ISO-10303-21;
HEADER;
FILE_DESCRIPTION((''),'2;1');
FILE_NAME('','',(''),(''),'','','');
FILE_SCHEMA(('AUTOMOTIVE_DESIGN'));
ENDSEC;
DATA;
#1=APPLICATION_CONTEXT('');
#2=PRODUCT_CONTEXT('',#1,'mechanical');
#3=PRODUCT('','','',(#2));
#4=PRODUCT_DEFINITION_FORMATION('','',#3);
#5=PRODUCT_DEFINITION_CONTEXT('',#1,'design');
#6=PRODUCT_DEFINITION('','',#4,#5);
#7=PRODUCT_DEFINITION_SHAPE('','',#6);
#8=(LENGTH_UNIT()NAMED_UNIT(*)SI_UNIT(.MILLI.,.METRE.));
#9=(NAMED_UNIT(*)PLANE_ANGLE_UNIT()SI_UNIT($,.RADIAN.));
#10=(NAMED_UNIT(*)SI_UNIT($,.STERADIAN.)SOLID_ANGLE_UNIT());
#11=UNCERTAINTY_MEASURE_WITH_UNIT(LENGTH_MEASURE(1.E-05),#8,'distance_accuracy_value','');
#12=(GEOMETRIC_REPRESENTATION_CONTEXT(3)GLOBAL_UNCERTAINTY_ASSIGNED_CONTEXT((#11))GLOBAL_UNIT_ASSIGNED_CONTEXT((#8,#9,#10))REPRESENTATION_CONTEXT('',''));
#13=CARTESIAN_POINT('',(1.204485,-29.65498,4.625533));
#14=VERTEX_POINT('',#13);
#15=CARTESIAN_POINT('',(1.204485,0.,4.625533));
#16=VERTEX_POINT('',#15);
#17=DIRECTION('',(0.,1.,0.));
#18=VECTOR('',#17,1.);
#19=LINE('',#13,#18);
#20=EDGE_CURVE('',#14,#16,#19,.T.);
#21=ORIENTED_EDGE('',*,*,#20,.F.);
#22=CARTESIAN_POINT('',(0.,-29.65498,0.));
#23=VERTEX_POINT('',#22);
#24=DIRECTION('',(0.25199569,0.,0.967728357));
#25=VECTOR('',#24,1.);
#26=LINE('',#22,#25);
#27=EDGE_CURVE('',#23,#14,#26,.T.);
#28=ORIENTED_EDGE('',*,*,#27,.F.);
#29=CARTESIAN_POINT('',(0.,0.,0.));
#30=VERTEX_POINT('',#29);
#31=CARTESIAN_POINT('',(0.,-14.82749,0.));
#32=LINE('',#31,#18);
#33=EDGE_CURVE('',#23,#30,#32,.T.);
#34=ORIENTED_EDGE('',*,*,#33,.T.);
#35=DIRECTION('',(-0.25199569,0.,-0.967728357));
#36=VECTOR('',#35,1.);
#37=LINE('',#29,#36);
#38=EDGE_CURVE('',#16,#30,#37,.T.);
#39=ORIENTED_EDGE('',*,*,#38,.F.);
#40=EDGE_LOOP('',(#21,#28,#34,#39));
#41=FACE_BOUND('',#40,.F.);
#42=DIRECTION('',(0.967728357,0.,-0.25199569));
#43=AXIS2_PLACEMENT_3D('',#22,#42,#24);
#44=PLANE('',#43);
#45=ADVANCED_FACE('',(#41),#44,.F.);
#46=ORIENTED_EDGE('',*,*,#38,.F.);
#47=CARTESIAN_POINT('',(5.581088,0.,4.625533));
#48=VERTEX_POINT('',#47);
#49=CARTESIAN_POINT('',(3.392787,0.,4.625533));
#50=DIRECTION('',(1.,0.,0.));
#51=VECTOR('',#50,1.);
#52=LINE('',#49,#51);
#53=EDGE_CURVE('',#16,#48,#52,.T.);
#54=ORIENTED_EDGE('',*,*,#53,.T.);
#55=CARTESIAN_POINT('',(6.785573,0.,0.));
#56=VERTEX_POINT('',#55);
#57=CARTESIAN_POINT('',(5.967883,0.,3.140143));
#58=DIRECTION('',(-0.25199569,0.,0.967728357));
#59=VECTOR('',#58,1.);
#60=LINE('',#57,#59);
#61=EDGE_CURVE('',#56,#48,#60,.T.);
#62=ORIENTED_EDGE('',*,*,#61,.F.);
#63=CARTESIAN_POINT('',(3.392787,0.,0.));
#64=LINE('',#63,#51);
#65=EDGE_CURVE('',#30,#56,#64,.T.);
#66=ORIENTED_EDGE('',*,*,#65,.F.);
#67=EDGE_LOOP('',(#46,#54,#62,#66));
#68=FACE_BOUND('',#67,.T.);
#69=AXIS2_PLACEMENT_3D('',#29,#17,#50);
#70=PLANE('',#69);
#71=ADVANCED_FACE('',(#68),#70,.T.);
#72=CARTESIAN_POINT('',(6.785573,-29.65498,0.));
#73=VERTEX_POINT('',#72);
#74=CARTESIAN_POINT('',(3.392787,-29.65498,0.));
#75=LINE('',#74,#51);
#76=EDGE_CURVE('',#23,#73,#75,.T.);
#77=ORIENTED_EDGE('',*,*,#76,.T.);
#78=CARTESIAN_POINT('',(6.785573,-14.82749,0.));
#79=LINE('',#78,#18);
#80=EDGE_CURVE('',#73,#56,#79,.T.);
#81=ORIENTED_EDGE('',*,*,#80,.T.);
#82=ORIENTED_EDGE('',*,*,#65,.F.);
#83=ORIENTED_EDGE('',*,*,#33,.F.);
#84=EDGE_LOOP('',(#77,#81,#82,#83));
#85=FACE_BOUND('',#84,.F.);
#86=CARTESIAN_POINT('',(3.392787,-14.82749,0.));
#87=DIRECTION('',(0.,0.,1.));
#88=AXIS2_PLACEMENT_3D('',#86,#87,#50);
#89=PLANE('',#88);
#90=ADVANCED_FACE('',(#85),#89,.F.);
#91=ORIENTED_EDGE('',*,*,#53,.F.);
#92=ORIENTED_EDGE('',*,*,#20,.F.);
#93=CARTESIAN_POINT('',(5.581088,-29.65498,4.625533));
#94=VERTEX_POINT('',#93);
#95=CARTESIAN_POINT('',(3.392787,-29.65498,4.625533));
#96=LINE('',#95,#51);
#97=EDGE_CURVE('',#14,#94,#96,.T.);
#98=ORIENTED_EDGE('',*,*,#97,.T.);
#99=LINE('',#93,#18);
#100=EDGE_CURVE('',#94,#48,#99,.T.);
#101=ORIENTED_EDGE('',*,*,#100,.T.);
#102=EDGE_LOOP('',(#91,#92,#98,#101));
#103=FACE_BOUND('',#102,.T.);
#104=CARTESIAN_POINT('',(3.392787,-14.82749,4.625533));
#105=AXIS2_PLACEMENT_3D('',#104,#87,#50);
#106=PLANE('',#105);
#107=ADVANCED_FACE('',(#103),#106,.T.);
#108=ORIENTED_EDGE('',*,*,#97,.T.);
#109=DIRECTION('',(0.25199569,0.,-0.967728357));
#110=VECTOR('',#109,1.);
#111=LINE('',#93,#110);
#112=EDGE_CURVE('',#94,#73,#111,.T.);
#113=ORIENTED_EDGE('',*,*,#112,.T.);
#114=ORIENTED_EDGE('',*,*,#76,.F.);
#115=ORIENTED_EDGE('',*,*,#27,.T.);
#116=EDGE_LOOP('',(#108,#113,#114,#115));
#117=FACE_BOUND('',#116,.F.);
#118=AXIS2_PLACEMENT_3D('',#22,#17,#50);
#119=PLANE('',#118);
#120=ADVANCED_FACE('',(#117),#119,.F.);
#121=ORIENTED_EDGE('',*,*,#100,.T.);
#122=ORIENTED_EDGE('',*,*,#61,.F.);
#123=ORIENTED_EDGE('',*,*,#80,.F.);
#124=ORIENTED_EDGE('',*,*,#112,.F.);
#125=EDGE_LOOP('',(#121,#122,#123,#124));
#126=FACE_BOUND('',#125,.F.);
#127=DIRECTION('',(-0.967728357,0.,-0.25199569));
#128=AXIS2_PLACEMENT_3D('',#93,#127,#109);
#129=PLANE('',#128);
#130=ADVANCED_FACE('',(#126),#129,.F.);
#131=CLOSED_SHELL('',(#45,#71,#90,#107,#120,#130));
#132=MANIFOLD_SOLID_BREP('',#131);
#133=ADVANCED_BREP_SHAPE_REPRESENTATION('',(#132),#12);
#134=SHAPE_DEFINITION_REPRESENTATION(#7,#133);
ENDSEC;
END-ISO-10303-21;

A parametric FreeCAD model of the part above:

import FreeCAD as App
import Part
import Sketcher

V = App.Vector
Q = App.Units.Quantity


def add_polygon(sketch, points):
    """Adds a closed chain of lines whose ends are joined by coincident constraints."""
    first, n = sketch.GeometryCount, len(points)
    for a, b in zip(points, points[1:] + points[:1]):
        sketch.addGeometry(Part.LineSegment(App.Vector(*a, 0), App.Vector(*b, 0)), False)
    for i in range(n):
        sketch.addConstraint(Sketcher.Constraint("Coincident", first + i, 2, first + (i + 1) % n, 1))

doc = App.newDocument("Part")
body = doc.addObject("PartDesign::Body", "Body")

# Sketch on XY plane
sketch1 = body.newObject("Sketcher::SketchObject", "Sketch")
sketch1.AttachmentSupport = (doc.getObject("XY_Plane"), [""])
sketch1.MapMode = "FlatFace"
add_polygon(sketch1, [(0, 0), (0, -30), (7, -30), (7, 0)])  # lines 0-3
sketch1.addConstraint(Sketcher.Constraint("Vertical", 0))
sketch1.addConstraint(Sketcher.Constraint("Horizontal", 1))
sketch1.addConstraint(Sketcher.Constraint("Vertical", 2))
sketch1.addConstraint(Sketcher.Constraint("Horizontal", 3))
sketch1.addConstraint(Sketcher.Constraint("Coincident", 3, 2, -1, 1))
sketch1.addConstraint(Sketcher.Constraint("DistanceY", 0, 2, 0, 1, Q("29.65498 mm")))
sketch1.addConstraint(Sketcher.Constraint("DistanceX", 1, 1, 1, 2, Q("6.785573 mm")))
pad1 = body.newObject("PartDesign::Pad", "Pad")
pad1.Profile = sketch1
pad1.Length = 4.625533

# Sketch on XZ plane
sketch2 = body.newObject("Sketcher::SketchObject", "Sketch001")
sketch2.AttachmentSupport = (doc.getObject("XZ_Plane"), [""])
sketch2.MapMode = "FlatFace"
sketch2.AttachmentOffset = App.Placement(V(0, 0, 29.65498), App.Rotation())
add_polygon(sketch2, [(5.6, 4.6), (6.8, 0), (6.8, 4.6)])  # lines 0-2
add_polygon(sketch2, [(0, 4.6), (0, 0), (1.2, 4.6)])  # lines 3-5
sketch2.addConstraint(Sketcher.Constraint("Vertical", 1))
sketch2.addConstraint(Sketcher.Constraint("Horizontal", 2))
sketch2.addConstraint(Sketcher.Constraint("Vertical", 3))
sketch2.addConstraint(Sketcher.Constraint("Horizontal", 5))
sketch2.addConstraint(Sketcher.Constraint("Coincident", 3, 2, -1, 1))
sketch2.addConstraint(Sketcher.Constraint("PointOnObject", 0, 2, -1))
sketch2.addConstraint(Sketcher.Constraint("Horizontal", 2, 2, 4, 2))
sketch2.addConstraint(Sketcher.Constraint("Equal", 2, 5))
sketch2.addConstraint(Sketcher.Constraint("DistanceX", 2, 2, 2, 1, Q("1.204485 mm")))
sketch2.addConstraint(Sketcher.Constraint("DistanceY", 1, 1, 1, 2, Q("4.625533 mm")))
sketch2.addConstraint(Sketcher.Constraint("DistanceX", -1, 1, 2, 2, Q("5.581088 mm")))
pocket1 = body.newObject("PartDesign::Pocket", "Pocket")
pocket1.Profile = sketch2
pocket1.Length = 38.274284

doc.recompute()
